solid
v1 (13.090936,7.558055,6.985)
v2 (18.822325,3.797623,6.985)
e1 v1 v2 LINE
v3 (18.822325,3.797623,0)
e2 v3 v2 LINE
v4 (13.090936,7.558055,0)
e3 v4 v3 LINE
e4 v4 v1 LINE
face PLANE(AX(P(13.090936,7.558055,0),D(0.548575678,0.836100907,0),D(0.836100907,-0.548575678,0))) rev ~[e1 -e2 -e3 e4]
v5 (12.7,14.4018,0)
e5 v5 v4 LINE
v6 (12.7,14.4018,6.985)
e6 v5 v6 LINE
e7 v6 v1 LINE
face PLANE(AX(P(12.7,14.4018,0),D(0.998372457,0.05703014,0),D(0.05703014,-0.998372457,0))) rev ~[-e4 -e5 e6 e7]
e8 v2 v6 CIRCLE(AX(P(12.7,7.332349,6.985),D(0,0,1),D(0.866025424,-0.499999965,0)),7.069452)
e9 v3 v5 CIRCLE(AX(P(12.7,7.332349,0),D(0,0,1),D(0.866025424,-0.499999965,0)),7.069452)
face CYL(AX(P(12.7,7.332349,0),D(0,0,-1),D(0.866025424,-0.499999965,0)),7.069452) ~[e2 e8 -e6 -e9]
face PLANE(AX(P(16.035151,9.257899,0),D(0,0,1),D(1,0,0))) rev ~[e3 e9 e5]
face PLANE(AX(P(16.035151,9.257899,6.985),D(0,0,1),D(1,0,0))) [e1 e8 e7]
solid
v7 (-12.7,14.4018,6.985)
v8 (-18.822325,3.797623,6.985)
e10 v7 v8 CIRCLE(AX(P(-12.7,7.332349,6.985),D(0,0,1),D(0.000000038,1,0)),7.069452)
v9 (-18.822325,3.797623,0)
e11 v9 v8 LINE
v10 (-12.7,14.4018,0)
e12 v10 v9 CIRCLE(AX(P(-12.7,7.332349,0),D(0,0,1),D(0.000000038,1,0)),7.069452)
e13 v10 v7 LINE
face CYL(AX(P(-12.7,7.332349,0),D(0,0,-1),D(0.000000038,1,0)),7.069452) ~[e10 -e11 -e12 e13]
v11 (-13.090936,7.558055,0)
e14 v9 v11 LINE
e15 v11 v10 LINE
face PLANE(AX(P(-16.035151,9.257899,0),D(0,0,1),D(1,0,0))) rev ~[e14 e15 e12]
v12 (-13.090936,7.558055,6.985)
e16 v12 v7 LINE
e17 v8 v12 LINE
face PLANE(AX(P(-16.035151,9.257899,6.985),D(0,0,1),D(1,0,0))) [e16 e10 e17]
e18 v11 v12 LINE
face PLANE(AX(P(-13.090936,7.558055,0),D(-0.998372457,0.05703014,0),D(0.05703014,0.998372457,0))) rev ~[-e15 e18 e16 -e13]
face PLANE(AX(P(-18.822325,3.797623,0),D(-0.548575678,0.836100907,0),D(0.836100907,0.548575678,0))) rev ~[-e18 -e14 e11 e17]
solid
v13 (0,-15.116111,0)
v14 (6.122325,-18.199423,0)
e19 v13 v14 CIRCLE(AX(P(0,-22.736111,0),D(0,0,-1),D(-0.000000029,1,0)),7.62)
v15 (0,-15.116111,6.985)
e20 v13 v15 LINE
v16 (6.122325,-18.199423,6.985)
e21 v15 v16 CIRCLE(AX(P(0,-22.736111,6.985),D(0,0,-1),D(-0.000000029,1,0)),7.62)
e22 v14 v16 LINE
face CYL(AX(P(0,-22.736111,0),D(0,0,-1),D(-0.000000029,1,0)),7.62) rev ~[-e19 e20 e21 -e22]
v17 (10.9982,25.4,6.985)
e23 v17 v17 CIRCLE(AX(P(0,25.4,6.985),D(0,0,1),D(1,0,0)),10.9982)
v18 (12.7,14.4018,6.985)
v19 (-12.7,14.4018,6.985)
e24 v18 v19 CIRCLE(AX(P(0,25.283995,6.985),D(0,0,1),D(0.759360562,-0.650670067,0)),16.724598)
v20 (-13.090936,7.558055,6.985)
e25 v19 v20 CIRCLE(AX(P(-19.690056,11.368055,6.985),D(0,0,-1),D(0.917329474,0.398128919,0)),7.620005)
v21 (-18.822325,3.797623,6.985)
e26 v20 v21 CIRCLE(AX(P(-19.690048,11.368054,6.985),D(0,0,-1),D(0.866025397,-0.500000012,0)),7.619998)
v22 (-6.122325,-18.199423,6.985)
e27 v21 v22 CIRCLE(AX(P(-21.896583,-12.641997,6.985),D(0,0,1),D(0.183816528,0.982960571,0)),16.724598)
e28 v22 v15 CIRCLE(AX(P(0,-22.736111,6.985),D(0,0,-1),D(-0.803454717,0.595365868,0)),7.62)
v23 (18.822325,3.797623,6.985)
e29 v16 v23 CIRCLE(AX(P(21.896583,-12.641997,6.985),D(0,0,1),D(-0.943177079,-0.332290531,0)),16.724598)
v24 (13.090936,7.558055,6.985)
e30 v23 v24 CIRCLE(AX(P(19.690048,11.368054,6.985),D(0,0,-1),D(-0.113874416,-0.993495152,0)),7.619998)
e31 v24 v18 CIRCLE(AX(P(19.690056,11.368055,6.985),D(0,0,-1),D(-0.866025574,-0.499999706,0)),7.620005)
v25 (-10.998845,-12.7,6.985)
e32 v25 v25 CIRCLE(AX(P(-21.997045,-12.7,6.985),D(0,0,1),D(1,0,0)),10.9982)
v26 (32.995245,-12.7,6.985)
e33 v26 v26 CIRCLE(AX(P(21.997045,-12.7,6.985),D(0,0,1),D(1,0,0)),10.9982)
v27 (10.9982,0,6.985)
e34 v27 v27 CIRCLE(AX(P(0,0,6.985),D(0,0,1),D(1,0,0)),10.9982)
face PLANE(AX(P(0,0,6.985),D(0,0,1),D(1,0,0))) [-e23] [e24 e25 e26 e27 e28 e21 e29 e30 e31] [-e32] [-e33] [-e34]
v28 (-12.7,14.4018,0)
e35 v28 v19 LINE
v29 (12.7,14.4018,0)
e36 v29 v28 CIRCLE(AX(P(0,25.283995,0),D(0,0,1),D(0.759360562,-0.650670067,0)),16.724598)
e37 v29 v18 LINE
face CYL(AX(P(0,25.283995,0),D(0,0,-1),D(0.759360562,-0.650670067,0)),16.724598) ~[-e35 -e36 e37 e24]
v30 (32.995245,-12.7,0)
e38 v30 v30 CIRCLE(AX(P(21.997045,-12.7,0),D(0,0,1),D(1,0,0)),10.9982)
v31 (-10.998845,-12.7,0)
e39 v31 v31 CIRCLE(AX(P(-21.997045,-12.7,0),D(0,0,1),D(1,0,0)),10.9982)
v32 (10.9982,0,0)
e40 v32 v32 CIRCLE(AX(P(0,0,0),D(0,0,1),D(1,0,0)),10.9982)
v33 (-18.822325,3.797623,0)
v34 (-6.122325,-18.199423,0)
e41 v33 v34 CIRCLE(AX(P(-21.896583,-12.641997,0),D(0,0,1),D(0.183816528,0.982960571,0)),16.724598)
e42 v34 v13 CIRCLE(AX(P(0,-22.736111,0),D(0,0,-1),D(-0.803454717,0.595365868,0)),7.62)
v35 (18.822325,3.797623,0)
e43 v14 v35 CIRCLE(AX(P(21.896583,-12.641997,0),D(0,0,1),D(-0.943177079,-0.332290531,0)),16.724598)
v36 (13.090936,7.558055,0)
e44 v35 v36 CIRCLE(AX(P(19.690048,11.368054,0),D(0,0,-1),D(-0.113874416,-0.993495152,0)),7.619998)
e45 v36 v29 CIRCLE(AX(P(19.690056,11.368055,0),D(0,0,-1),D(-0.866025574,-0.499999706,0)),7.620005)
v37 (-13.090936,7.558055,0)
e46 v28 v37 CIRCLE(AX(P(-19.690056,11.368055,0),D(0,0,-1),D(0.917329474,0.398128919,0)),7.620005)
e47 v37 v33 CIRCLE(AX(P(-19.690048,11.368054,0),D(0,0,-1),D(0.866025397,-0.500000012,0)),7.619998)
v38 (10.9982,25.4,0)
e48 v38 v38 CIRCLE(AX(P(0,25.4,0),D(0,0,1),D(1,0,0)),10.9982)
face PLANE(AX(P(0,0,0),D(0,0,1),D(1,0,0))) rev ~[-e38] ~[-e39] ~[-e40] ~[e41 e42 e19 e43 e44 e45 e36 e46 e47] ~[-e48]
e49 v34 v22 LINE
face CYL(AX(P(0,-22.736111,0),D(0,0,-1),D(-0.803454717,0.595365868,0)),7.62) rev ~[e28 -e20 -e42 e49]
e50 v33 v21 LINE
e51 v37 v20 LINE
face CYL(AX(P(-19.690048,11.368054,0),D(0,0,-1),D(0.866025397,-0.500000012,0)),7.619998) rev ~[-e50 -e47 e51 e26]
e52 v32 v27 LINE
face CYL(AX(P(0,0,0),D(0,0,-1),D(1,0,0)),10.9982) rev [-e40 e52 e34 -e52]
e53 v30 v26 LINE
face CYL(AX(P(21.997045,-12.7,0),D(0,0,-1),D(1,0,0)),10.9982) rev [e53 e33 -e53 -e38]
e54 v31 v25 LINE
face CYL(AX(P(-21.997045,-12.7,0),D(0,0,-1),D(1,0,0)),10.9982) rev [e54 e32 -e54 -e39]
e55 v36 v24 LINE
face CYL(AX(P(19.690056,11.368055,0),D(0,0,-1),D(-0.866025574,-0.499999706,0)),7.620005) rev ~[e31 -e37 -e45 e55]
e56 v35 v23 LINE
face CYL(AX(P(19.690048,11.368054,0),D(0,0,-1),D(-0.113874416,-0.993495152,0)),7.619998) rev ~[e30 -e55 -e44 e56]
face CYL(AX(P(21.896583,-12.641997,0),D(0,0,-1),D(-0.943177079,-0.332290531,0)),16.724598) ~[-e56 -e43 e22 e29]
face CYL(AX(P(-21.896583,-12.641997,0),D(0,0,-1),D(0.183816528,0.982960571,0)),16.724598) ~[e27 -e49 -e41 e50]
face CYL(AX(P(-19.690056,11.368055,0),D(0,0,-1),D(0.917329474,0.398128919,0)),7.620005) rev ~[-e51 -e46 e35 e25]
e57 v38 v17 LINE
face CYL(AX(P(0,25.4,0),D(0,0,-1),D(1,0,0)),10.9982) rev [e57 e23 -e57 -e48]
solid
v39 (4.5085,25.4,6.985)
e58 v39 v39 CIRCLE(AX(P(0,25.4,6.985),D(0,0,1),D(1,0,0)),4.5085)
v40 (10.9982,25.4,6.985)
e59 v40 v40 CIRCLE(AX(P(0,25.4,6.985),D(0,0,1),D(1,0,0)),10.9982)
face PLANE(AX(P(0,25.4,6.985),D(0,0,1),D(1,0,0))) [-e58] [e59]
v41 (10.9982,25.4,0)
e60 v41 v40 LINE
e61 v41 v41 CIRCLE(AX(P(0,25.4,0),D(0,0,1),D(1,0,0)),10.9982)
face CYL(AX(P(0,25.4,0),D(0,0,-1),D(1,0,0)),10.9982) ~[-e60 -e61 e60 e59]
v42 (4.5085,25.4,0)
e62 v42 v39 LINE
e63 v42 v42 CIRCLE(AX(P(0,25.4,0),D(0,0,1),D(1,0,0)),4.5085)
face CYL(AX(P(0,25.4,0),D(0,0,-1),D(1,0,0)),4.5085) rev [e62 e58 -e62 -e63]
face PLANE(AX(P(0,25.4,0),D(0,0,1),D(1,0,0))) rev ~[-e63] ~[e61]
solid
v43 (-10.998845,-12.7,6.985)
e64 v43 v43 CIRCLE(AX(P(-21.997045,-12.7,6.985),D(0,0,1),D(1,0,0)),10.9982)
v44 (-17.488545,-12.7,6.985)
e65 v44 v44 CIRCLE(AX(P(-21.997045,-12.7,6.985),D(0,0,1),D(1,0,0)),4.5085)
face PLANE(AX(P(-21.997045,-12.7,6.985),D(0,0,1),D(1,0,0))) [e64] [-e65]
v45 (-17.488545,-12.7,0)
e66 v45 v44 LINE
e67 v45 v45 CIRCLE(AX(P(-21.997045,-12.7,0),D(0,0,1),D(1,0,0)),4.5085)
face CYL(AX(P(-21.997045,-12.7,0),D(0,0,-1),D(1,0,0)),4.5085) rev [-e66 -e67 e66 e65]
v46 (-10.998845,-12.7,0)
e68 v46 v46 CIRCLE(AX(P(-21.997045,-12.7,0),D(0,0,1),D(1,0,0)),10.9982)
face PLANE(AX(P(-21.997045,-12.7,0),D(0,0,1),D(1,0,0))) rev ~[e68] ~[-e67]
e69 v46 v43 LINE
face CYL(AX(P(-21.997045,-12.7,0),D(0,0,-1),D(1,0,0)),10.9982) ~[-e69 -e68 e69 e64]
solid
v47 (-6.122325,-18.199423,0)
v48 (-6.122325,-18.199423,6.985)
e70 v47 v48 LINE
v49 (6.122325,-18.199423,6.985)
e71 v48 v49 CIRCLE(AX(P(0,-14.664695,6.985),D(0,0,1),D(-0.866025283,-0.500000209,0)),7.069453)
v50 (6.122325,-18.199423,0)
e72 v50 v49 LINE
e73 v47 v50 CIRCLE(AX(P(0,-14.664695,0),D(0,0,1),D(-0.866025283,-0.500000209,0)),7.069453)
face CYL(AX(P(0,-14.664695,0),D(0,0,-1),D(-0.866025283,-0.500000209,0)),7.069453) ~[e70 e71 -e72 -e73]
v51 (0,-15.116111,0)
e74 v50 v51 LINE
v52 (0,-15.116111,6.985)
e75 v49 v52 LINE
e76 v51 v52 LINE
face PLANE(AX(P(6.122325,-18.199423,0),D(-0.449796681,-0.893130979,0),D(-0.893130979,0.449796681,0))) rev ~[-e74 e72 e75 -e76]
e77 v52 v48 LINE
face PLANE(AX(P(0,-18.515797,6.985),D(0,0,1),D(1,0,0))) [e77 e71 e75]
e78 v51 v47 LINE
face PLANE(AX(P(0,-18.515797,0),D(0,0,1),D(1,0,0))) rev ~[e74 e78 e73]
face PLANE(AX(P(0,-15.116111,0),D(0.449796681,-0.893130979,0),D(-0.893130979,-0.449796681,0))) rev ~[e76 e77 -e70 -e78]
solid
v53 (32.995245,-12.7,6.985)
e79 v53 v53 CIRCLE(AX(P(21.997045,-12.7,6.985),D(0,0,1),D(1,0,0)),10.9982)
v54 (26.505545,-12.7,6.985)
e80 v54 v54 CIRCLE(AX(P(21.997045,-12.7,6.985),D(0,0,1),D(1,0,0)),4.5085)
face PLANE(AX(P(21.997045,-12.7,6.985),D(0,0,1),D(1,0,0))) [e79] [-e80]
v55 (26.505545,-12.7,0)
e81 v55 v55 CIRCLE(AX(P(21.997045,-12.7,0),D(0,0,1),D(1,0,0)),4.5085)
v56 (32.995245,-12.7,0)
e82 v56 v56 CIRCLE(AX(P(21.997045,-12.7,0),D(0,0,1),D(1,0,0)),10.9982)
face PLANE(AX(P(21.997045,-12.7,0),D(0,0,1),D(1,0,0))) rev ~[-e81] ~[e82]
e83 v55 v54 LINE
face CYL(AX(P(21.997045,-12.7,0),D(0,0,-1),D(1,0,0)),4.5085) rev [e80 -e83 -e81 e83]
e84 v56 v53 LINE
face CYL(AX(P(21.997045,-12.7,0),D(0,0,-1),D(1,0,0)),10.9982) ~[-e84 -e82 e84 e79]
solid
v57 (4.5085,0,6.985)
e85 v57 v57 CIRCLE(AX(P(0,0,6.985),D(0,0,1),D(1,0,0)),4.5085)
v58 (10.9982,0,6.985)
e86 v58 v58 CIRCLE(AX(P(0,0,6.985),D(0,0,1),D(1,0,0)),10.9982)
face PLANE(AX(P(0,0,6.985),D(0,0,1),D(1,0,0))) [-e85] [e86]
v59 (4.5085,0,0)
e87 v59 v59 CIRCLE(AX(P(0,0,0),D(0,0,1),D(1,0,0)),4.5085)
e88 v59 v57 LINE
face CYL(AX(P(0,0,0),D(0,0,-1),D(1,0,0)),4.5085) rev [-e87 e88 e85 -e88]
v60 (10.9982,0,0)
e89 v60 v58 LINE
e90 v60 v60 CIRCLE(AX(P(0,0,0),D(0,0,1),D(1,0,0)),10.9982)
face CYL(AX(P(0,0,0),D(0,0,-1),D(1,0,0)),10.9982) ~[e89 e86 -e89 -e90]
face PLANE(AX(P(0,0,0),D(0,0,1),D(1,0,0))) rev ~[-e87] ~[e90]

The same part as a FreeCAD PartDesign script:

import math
import FreeCAD as App
import Part
import Sketcher
Q = App.Units.Quantity

doc = App.newDocument("Part")
body = doc.addObject("PartDesign::Body", "Body")
body.AllowCompound = True

# Sketch on XY plane
sketch1 = body.newObject("Sketcher::SketchObject", "Sketch")
sketch1.AttachmentSupport = (doc.getObject("XY_Plane"), [""])
sketch1.MapMode = "FlatFace"
sketch1.addGeometry([
    Part.Circle(App.Vector(-22, -12.7, 0), App.Vector(0, 0, 1), 11),
    Part.Circle(App.Vector(-22, -12.7, 0), App.Vector(0, 0, 1), 4.5),
    Part.Circle(App.Vector(22, -12.7, 0), App.Vector(0, 0, 1), 11),
    Part.Circle(App.Vector(22, -12.7, 0), App.Vector(0, 0, 1), 4.5),
], False)
sketch1.addConstraint([
    Sketcher.Constraint("Coincident", 1, 3, 0, 3),
    Sketcher.Constraint("Coincident", 3, 3, 2, 3),
    Sketcher.Constraint("Equal", 0, 2),
    Sketcher.Constraint("Equal", 1, 3),
    Sketcher.Constraint("Symmetric", 0, 3, 2, 3, -2),
    Sketcher.Constraint("Diameter", 0, Q("0.866 in")),
    Sketcher.Constraint("Diameter", 1, Q("0.355 in")),
    Sketcher.Constraint("DistanceY", 0, 3, -1, 1, Q("0.5 in")),
    Sketcher.Constraint("DistanceX", 0, 3, 2, 3, 43.99409),
])
pad1 = body.newObject("PartDesign::Pad", "Pad")
pad1.Profile = sketch1
pad1.Length = Q("0.275 in")
body2 = doc.addObject("PartDesign::Body", "Body001")

# Sketch on XY plane
sketch2 = body2.newObject("Sketcher::SketchObject", "Sketch001")
sketch2.AttachmentSupport = (doc.getObject("XY_Plane001"), [""])
sketch2.MapMode = "FlatFace"
sketch2.addGeometry([
    Part.Circle(App.Vector(0, 25.4, 0), App.Vector(0, 0, 1), 11),
    Part.Circle(App.Vector(0, 25.4, 0), App.Vector(0, 0, 1), 4.5),
], False)
sketch2.addConstraint([
    Sketcher.Constraint("Coincident", 1, 3, 0, 3),
    Sketcher.Constraint("PointOnObject", 0, 3, -2),
    Sketcher.Constraint("Diameter", 0, Q("0.866 in")),
    Sketcher.Constraint("Diameter", 1, Q("0.355 in")),
    Sketcher.Constraint("DistanceY", -1, 1, 0, 3, Q("1 in")),
])
pad2 = body2.newObject("PartDesign::Pad", "Pad001")
pad2.Profile = sketch2
pad2.Length = Q("0.275 in")
body3 = doc.addObject("PartDesign::Body", "Body002")

# Sketch on XY plane
sketch3 = body3.newObject("Sketcher::SketchObject", "Sketch002")
sketch3.AttachmentSupport = (doc.getObject("XY_Plane002"), [""])
sketch3.MapMode = "FlatFace"
sketch3.addGeometry([
    Part.Circle(App.Vector(0, 0, 0), App.Vector(0, 0, 1), 11),
    Part.Circle(App.Vector(0, 0, 0), App.Vector(0, 0, 1), 4.5),
], False)
sketch3.addConstraint([
    Sketcher.Constraint("Coincident", 0, 3, -1, 1),
    Sketcher.Constraint("Coincident", 1, 3, -1, 1),
    Sketcher.Constraint("Diameter", 0, Q("0.866 in")),
    Sketcher.Constraint("Diameter", 1, Q("0.355 in")),
])
pad3 = body3.newObject("PartDesign::Pad", "Pad002")
pad3.Profile = sketch3
pad3.Length = Q("0.275 in")
body4 = doc.addObject("PartDesign::Body", "Body003")

# Sketch on XY plane
sketch4 = body4.newObject("Sketcher::SketchObject", "Sketch003")
sketch4.AttachmentSupport = (doc.getObject("XY_Plane003"), [""])
sketch4.MapMode = "FlatFace"
sketch4.addGeometry([
    Part.ArcOfCircle(Part.Circle(App.Vector(-20, 11, 0), App.Vector(0, 0, 1), 8), math.radians(-83), math.radians(-30)),  # 0
    Part.ArcOfCircle(Part.Circle(App.Vector(-22, -13, 0), App.Vector(0, 0, 1), 17), math.radians(79), math.radians(341)),  # 1
    Part.ArcOfCircle(Part.Circle(App.Vector(0, -23, 0), App.Vector(0, 0, 1), 8), math.radians(90), math.radians(143)),  # 2
    Part.ArcOfCircle(Part.Circle(App.Vector(0, -23, 0), App.Vector(0, 0, 1), 8), math.radians(37), math.radians(90)),  # 3
    Part.ArcOfCircle(Part.Circle(App.Vector(22, -13, 0), App.Vector(0, 0, 1), 17), math.radians(-161), math.radians(101)),  # 4
    Part.ArcOfCircle(Part.Circle(App.Vector(20, 11, 0), App.Vector(0, 0, 1), 8), math.radians(-150), math.radians(-97)),  # 5
    Part.ArcOfCircle(Part.Circle(App.Vector(20, 11, 0), App.Vector(0, 0, 1), 8), math.radians(157), math.radians(210)),  # 6
    Part.ArcOfCircle(Part.Circle(App.Vector(0, 25, 0), App.Vector(0, 0, 1), 17), math.radians(-41), math.radians(221)),  # 7
    Part.ArcOfCircle(Part.Circle(App.Vector(-20, 11, 0), App.Vector(0, 0, 1), 8), math.radians(-30), math.radians(23)),  # 8
    Part.Circle(App.Vector(-22, -13, 0), App.Vector(0, 0, 1), 11),  # 9
    Part.Circle(App.Vector(22, -13, 0), App.Vector(0, 0, 1), 11),  # 10
    Part.Circle(App.Vector(0, 0, 0), App.Vector(0, 0, 1), 11),  # 11
    Part.Circle(App.Vector(0, 25, 0), App.Vector(0, 0, 1), 11),  # 12
], False)
sketch4.addConstraint([
    Sketcher.Constraint("Coincident", 0, 1, 1, 1),
    Sketcher.Constraint("Coincident", 1, 2, 2, 2),
    Sketcher.Constraint("Tangent", 2, 1, 3, 2),
    Sketcher.Constraint("Coincident", 3, 1, 4, 1),
    Sketcher.Constraint("Coincident", 4, 2, 5, 2),
    Sketcher.Constraint("Tangent", 5, 1, 6, 2),
    Sketcher.Constraint("Coincident", 6, 1, 7, 1),
    Sketcher.Constraint("Coincident", 7, 2, 8, 2),
    Sketcher.Constraint("Tangent", 8, 1, 0, 2),
    Sketcher.Constraint("Coincident", 11, 3, -1, 1),
    Sketcher.Constraint("Equal", 0, 2),
    Sketcher.Constraint("Equal", 2, 3),
    Sketcher.Constraint("Equal", 1, 4),
    Sketcher.Constraint("Equal", 3, 5),
    Sketcher.Constraint("Equal", 4, 7),
    Sketcher.Constraint("Equal", 6, 8),
    Sketcher.Constraint("Equal", 9, 10),
    Sketcher.Constraint("Equal", 10, 11),
    Sketcher.Constraint("Equal", 11, 12),
    Sketcher.Constraint("Symmetric", 1, 3, 4, 3, -2),
    Sketcher.Constraint("Symmetric", 0, 3, 5, 3, -2),
    Sketcher.Constraint("Symmetric", 9, 3, 10, 3, -2),
    Sketcher.Constraint("PointOnObject", 2, 3, -2),
    Sketcher.Constraint("PointOnObject", 7, 3, -2),
    Sketcher.Constraint("PointOnObject", 12, 3, -2),
    Sketcher.Constraint("PointOnObject", 2, 1, -2),
    Sketcher.Constraint("Horizontal", 0, 3, 6, 3),
    Sketcher.Constraint("Horizontal", 5, 1, 8, 1),
    Sketcher.Constraint("Radius", 0, Q("0.2999999 in")),
    Sketcher.Constraint("Diameter", 9, Q("0.866 in")),
    Sketcher.Constraint("DistanceY", -1, 1, 12, 3, Q("1 in")),
    Sketcher.Constraint("DistanceY", 9, 3, -1, 1, Q("0.5 in")),
    Sketcher.Constraint("DistanceX", -1, 1, 6, 1, Q("0.5 in")),
    Sketcher.Constraint("Radius", 1, 16.724598),
    Sketcher.Constraint("DistanceY", 5, 1, 5, 3, Q("0.15 in")),
    Sketcher.Constraint("DistanceY", -1, 1, 6, 1, Q("0.567 in")),
    Sketcher.Constraint("DistanceY", 2, 3, -1, 1, 22.736111),
    Sketcher.Constraint("DistanceY", 1, 3, 0, 3, 24.010052),
    Sketcher.Constraint("DistanceX", 0, 3, 3, 3, 19.690048),
    Sketcher.Constraint("DistanceX", 0, 3, 4, 3, 41.58663),
    Sketcher.Constraint("DistanceX", 9, 3, 8, 3, 2.306989),
])
pad4 = body4.newObject("PartDesign::Pad", "Pad003")
pad4.Profile = sketch4
pad4.Length = Q("0.275 in")
body5 = doc.addObject("PartDesign::Body", "Body004")
body5.AllowCompound = True

# Sketch on XY plane
sketch5 = body5.newObject("Sketcher::SketchObject", "Sketch004")
sketch5.AttachmentSupport = (doc.getObject("XY_Plane004"), [""])
sketch5.MapMode = "FlatFace"
sketch5.addGeometry([
    Part.ArcOfCircle(Part.Circle(App.Vector(-13, 7, 0), App.Vector(0, 0, 1), 7), math.radians(90), math.radians(210)),  # 0
    Part.LineSegment(App.Vector(-19, 4, 0), App.Vector(-13, 8, 0)),  # 1
    Part.LineSegment(App.Vector(-13, 8, 0), App.Vector(-13, 14, 0)),  # 2
    Part.ArcOfCircle(Part.Circle(App.Vector(13, 7, 0), App.Vector(0, 0, 1), 7), math.radians(-30), math.radians(90)),  # 3
    Part.LineSegment(App.Vector(13, 14, 0), App.Vector(13, 8, 0)),  # 4
    Part.LineSegment(App.Vector(13, 8, 0), App.Vector(19, 4, 0)),  # 5
    Part.LineSegment(App.Vector(0, -15, 0), App.Vector(-6, -18, 0)),  # 6
    Part.ArcOfCircle(Part.Circle(App.Vector(0, -15, 0), App.Vector(0, 0, 1), 7), math.radians(-150), math.radians(-30)),  # 7
    Part.LineSegment(App.Vector(6, -18, 0), App.Vector(0, -15, 0)),  # 8
], False)
sketch5.addConstraint([
    Sketcher.Constraint("Coincident", 0, 2, 1, 1),
    Sketcher.Constraint("Coincident", 1, 2, 2, 1),
    Sketcher.Constraint("Coincident", 2, 2, 0, 1),
    Sketcher.Constraint("Coincident", 3, 2, 4, 1),
    Sketcher.Constraint("Coincident", 4, 2, 5, 1),
    Sketcher.Constraint("Coincident", 5, 2, 3, 1),
    Sketcher.Constraint("Coincident", 6, 2, 7, 1),
    Sketcher.Constraint("Coincident", 7, 2, 8, 1),
    Sketcher.Constraint("Coincident", 8, 2, 6, 1),
    Sketcher.Constraint("Equal", 0, 3),
    Sketcher.Constraint("Equal", 3, 7),
    Sketcher.Constraint("Symmetric", 0, 3, 3, 3, -2),
    Sketcher.Constraint("Symmetric", 1, 2, 4, 2, -2),
    Sketcher.Constraint("Symmetric", 6, 2, 7, 2, -2),
    Sketcher.Constraint("PointOnObject", 8, 2, -2),
    Sketcher.Constraint("Horizontal", 0, 2, 5, 2),
    Sketcher.Constraint("Vertical", 0, 3, 2, 2),
    Sketcher.Constraint("Equal", 1, 2),
    Sketcher.Constraint("Equal", 2, 4),
    Sketcher.Constraint("Equal", 5, 6),
    Sketcher.Constraint("DistanceX", 0, 3, 3, 3, Q("1 in")),
    Sketcher.Constraint("DistanceX", 0, 2, 6, 2, Q("0.5 in")),
    Sketcher.Constraint("DistanceY", -1, 1, 2, 2, Q("0.567 in")),
    Sketcher.Constraint("Radius", 0, 7.069452),
    Sketcher.Constraint("Distance", 1, 6.854901),
    Sketcher.Constraint("DistanceY", 8, 2, -1, 1, 15.116111),
    Sketcher.Constraint("DistanceY", 7, 3, 0, 2, 18.462318),
])
pad5 = body5.newObject("PartDesign::Pad", "Pad004")
pad5.Profile = sketch5
pad5.Length = Q("0.275 in")

doc.recompute()
